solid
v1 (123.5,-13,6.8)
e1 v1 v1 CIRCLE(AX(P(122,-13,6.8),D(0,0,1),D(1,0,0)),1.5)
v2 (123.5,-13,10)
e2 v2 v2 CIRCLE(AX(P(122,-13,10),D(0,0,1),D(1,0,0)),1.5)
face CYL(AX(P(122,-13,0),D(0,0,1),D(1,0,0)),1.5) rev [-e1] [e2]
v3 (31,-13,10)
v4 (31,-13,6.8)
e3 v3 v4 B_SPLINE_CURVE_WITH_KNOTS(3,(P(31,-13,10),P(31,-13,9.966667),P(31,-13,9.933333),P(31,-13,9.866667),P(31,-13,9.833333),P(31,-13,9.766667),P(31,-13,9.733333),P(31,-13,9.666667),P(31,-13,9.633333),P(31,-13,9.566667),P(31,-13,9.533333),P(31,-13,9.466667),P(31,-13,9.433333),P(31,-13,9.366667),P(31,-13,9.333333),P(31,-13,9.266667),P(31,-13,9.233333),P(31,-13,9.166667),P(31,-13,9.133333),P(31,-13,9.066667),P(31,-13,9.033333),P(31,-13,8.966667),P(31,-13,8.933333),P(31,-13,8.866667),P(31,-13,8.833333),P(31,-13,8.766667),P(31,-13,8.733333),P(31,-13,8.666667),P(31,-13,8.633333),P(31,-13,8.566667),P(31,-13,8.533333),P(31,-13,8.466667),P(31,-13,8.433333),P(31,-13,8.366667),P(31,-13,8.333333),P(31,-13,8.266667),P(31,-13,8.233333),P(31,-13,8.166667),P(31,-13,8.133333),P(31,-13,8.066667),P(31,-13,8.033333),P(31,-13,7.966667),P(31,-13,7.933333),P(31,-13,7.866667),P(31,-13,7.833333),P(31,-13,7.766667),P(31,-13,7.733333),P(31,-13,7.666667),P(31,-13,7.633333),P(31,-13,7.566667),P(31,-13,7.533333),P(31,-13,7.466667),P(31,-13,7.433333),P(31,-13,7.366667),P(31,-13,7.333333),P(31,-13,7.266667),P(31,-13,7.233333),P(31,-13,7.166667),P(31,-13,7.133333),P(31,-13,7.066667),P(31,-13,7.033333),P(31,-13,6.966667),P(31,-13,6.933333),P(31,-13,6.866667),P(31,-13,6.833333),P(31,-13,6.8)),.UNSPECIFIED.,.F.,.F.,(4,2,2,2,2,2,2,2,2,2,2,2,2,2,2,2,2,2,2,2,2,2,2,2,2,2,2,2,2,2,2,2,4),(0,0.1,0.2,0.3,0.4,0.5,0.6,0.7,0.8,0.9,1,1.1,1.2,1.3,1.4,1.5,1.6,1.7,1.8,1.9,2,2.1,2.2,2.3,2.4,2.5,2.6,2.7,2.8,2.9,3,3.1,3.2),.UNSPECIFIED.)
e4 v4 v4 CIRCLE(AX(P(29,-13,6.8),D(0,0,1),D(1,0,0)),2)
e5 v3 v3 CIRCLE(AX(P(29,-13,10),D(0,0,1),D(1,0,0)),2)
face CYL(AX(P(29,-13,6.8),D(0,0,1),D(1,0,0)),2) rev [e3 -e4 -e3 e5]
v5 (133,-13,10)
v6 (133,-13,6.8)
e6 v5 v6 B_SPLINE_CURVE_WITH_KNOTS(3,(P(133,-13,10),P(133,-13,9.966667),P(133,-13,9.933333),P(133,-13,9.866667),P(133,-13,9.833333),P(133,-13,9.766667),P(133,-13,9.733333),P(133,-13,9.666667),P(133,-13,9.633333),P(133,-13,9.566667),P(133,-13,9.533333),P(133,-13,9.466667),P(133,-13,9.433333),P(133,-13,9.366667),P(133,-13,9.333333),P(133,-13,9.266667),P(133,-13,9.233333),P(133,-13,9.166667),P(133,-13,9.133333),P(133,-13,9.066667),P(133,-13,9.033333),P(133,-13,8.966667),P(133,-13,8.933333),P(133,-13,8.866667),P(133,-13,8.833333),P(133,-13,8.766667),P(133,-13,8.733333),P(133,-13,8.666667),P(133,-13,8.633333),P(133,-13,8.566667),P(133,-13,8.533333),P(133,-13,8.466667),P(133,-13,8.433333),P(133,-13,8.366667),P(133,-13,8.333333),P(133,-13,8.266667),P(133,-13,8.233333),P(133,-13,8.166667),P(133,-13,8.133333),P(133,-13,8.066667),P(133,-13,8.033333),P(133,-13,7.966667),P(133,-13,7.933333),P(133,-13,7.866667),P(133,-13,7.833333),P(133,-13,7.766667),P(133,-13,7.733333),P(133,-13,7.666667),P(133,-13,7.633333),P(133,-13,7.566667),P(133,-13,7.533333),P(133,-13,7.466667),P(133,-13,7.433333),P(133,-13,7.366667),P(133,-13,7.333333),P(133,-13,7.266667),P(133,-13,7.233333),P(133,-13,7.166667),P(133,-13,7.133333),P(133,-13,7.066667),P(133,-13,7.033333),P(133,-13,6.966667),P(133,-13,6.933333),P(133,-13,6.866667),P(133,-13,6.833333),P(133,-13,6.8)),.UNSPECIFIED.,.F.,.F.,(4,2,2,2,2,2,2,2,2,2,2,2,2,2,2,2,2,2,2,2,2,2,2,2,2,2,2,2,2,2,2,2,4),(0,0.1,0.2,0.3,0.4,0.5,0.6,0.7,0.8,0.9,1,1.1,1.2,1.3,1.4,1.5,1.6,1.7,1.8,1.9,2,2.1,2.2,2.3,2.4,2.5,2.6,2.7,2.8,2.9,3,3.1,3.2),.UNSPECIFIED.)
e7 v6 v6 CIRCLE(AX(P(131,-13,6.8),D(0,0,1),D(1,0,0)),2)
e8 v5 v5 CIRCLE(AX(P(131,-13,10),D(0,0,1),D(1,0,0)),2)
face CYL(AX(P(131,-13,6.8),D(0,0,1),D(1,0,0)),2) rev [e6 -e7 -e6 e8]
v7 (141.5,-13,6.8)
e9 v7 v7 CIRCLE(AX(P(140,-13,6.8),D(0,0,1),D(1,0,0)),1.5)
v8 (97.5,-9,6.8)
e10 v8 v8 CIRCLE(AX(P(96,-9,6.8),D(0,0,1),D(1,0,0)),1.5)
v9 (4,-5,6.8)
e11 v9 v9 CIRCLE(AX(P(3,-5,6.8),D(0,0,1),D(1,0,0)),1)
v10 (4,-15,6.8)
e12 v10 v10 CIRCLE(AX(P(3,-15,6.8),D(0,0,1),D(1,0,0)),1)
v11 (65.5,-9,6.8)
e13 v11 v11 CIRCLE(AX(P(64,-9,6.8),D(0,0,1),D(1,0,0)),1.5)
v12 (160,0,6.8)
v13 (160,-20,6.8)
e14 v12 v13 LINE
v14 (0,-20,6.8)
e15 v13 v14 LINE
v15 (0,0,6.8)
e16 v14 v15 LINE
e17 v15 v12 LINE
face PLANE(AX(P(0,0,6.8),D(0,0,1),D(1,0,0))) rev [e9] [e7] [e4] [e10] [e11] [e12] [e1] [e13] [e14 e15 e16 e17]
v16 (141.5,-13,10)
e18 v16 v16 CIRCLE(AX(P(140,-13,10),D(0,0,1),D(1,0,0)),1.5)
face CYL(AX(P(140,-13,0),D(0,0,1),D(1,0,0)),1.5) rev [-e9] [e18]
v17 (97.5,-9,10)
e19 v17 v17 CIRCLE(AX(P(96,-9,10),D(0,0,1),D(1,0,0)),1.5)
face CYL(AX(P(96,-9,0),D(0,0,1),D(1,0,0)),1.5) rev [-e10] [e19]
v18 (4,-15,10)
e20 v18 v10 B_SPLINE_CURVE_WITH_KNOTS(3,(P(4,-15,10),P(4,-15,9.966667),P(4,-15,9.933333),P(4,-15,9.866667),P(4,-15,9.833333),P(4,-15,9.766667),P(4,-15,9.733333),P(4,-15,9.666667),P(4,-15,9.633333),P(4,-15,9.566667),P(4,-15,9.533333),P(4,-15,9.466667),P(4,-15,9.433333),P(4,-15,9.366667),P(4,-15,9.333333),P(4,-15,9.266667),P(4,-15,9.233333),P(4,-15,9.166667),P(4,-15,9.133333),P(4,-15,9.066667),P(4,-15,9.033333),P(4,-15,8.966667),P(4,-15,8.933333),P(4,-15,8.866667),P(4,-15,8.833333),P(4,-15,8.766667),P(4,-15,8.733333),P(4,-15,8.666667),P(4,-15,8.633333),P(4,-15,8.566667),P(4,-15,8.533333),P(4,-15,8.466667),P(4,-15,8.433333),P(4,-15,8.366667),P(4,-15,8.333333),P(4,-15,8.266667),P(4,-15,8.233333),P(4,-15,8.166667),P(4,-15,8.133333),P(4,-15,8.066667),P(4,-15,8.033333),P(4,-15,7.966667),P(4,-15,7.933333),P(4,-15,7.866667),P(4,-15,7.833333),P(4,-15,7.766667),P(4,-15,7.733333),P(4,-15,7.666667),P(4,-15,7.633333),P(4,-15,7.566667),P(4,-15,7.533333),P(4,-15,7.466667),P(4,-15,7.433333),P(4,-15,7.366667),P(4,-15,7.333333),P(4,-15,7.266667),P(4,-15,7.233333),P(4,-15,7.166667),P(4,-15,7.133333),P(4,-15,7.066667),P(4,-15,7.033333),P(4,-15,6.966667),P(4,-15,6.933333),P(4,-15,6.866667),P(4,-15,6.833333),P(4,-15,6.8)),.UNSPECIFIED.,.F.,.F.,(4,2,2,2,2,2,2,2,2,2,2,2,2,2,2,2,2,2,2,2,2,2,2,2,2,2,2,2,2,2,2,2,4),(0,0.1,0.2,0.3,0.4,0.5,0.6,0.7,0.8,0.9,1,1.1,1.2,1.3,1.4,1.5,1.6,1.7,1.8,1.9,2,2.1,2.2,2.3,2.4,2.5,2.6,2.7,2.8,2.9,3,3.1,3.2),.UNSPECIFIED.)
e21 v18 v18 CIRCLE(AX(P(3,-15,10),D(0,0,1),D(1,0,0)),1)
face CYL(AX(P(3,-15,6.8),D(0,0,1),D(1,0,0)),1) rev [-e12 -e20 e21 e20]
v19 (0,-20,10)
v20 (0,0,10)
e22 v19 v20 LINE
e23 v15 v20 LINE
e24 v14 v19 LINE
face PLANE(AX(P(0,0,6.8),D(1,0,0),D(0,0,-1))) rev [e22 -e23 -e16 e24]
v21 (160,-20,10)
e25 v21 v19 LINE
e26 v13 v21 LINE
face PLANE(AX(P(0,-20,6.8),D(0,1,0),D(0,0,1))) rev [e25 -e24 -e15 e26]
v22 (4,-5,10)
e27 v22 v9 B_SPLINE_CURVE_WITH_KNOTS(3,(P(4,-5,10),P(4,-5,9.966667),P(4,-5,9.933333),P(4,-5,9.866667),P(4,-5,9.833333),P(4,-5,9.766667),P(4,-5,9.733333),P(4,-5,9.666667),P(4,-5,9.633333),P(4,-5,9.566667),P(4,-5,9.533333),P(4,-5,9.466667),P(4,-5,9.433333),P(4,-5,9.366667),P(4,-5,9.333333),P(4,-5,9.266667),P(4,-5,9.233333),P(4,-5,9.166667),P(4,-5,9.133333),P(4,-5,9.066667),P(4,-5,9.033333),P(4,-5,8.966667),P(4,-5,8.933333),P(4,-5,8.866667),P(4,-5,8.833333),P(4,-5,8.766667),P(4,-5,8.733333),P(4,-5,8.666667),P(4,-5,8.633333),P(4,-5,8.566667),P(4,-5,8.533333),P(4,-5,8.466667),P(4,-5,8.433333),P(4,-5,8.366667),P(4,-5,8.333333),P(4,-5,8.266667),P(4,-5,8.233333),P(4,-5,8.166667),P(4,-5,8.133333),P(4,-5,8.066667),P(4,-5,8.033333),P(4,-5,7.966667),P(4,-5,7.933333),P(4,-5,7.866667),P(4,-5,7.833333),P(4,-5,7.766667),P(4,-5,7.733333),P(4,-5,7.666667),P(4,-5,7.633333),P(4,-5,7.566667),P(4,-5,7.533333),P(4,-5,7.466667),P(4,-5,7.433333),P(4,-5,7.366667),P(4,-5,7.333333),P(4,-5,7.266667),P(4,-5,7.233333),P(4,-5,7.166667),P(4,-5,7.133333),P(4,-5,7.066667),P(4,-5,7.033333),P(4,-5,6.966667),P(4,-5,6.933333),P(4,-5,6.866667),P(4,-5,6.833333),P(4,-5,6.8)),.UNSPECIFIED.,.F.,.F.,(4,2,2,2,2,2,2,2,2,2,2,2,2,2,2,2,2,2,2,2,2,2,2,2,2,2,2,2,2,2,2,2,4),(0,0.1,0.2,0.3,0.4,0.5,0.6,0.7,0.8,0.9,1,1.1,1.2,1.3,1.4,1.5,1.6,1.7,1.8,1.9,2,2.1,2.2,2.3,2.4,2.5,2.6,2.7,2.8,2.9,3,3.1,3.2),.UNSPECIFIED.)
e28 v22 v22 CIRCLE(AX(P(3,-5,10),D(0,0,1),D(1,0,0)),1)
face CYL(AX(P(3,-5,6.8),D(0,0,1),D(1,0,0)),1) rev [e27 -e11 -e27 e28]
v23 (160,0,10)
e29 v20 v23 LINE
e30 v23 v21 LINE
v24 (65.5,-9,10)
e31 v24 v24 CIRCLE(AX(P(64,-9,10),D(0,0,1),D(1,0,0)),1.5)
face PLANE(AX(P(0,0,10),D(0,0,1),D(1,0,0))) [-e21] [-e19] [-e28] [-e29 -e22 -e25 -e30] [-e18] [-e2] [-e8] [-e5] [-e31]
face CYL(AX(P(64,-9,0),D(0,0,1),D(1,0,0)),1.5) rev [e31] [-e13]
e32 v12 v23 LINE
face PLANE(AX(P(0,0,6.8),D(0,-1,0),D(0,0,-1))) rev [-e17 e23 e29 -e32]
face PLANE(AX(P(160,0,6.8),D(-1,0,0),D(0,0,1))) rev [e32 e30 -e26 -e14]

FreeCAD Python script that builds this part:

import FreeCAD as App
import Part
import Sketcher

doc = App.newDocument("Part")
body = doc.addObject("PartDesign::Body", "Body")

sketch1 = body.newObject("Sketcher::SketchObject", "Sketch")
sketch1.AttachmentSupport = (doc.getObject("XY_Plane"), [""])
sketch1.MapMode = "FlatFace"
sketch1.AttachmentOffset = App.Placement(App.Vector(0, 0, 10), App.Rotation())
sketch1.addGeometry([
    Part.LineSegment(App.Vector(0, -20, 0), App.Vector(0, 0, 0)),
    Part.LineSegment(App.Vector(0, 0, 0), App.Vector(160, 0, 0)),
    Part.LineSegment(App.Vector(160, 0, 0), App.Vector(160, -20, 0)),
    Part.LineSegment(App.Vector(160, -20, 0), App.Vector(0, -20, 0)),
], False)
sketch1.addConstraint([
    Sketcher.Constraint("Coincident", 0, 2, 1, 1),
    Sketcher.Constraint("Coincident", 1, 2, 2, 1),
    Sketcher.Constraint("Coincident", 2, 2, 3, 1),
    Sketcher.Constraint("Coincident", 3, 2, 0, 1),
    Sketcher.Constraint("Vertical", 0),
    Sketcher.Constraint("Horizontal", 1),
    Sketcher.Constraint("Vertical", 2),
    Sketcher.Constraint("Horizontal", 3),
    Sketcher.Constraint("Coincident", 0, 2, -1, 1),
    Sketcher.Constraint("DistanceX", 1, 1, 1, 2, 160.0),
    Sketcher.Constraint("DistanceY", 0, 1, 0, 2, 20.0),
])
pad1 = body.newObject("PartDesign::Pad", "Pad")
pad1.Profile = sketch1
pad1.Length = 3.2
pad1.Reversed = True

sketch2 = body.newObject("Sketcher::SketchObject", "Sketch001")
sketch2.AttachmentSupport = (doc.getObject("XY_Plane"), [""])
sketch2.MapMode = "FlatFace"
sketch2.AttachmentOffset = App.Placement(App.Vector(0, 0, 10), App.Rotation())
sketch2.addGeometry([
    Part.Circle(App.Vector(131, -13, 0), App.Vector(0, 0, 1), 2),
    Part.Circle(App.Vector(29, -13, 0), App.Vector(0, 0, 1), 2),
], False)
sketch2.addConstraint([
    Sketcher.Constraint("Equal", 0, 1),
    Sketcher.Constraint("Horizontal", 0, 3, 1, 3),
    Sketcher.Constraint("Diameter", 0, 4.0),
    Sketcher.Constraint("DistanceX", -1, 1, 0, 3, 131.0),
    Sketcher.Constraint("DistanceY", 0, 3, -1, 1, 13.0),
    Sketcher.Constraint("DistanceX", -1, 1, 1, 3, 29.0),
])
pocket1 = body.newObject("PartDesign::Pocket", "Pocket")
pocket1.Profile = sketch2
pocket1.Type = "ThroughAll"
pocket1.Midplane = True

sketch3 = body.newObject("Sketcher::SketchObject", "Sketch002")
sketch3.AttachmentSupport = (doc.getObject("XY_Plane"), [""])
sketch3.MapMode = "FlatFace"
sketch3.AttachmentOffset = App.Placement(App.Vector(0, 0, 10), App.Rotation())
sketch3.addGeometry([
    Part.Circle(App.Vector(64, -9, 0), App.Vector(0, 0, 1), 1.5),
    Part.Circle(App.Vector(96, -9, 0), App.Vector(0, 0, 1), 1.5),
], False)
sketch3.addConstraint([
    Sketcher.Constraint("Equal", 0, 1),
    Sketcher.Constraint("Horizontal", 0, 3, 1, 3),
    Sketcher.Constraint("Diameter", 0, 3.0),
    Sketcher.Constraint("DistanceX", -1, 1, 0, 3, 64.0),
    Sketcher.Constraint("DistanceY", 0, 3, -1, 1, 9.0),
    Sketcher.Constraint("DistanceX", -1, 1, 1, 3, 96.0),
])
pocket2 = body.newObject("PartDesign::Pocket", "Pocket001")
pocket2.Profile = sketch3
pocket2.Length = 10

sketch4 = body.newObject("Sketcher::SketchObject", "Sketch003")
sketch4.AttachmentSupport = (doc.getObject("XY_Plane"), [""])
sketch4.MapMode = "FlatFace"
sketch4.AttachmentOffset = App.Placement(App.Vector(0, 0, 10), App.Rotation())
sketch4.addGeometry([
    Part.Circle(App.Vector(3, -15, 0), App.Vector(0, 0, 1), 1),
    Part.Circle(App.Vector(3, -5, 0), App.Vector(0, 0, 1), 1),
], False)
sketch4.addConstraint([
    Sketcher.Constraint("Equal", 0, 1),
    Sketcher.Constraint("Vertical", 0, 3, 1, 3),
    Sketcher.Constraint("Diameter", 0, 2.0),
    Sketcher.Constraint("DistanceX", -1, 1, 0, 3, 3.0),
    Sketcher.Constraint("DistanceY", 0, 3, -1, 1, 15.0),
    Sketcher.Constraint("DistanceY", 1, 3, -1, 1, 5.0),
])
pocket3 = body.newObject("PartDesign::Pocket", "Pocket002")
pocket3.Profile = sketch4
pocket3.Type = "ThroughAll"
pocket3.Midplane = True

sketch5 = body.newObject("Sketcher::SketchObject", "Sketch004")
sketch5.AttachmentSupport = (doc.getObject("XY_Plane"), [""])
sketch5.MapMode = "FlatFace"
sketch5.AttachmentOffset = App.Placement(App.Vector(0, 0, 10), App.Rotation())
sketch5.addGeometry([
    Part.Circle(App.Vector(140, -13, 0), App.Vector(0, 0, 1), 1.5),
    Part.Circle(App.Vector(122, -13, 0), App.Vector(0, 0, 1), 1.5),
], False)
sketch5.addConstraint([
    Sketcher.Constraint("Equal", 0, 1),
    Sketcher.Constraint("Horizontal", 0, 3, 1, 3),
    Sketcher.Constraint("Diameter", 0, 3.0),
    Sketcher.Constraint("DistanceX", -1, 1, 0, 3, 140.0),
    Sketcher.Constraint("DistanceY", 0, 3, -1, 1, 13.0),
    Sketcher.Constraint("DistanceX", -1, 1, 1, 3, 122.0),
])
pocket4 = body.newObject("PartDesign::Pocket", "Pocket003")
pocket4.Profile = sketch5
pocket4.Length = 10

doc.recompute()
